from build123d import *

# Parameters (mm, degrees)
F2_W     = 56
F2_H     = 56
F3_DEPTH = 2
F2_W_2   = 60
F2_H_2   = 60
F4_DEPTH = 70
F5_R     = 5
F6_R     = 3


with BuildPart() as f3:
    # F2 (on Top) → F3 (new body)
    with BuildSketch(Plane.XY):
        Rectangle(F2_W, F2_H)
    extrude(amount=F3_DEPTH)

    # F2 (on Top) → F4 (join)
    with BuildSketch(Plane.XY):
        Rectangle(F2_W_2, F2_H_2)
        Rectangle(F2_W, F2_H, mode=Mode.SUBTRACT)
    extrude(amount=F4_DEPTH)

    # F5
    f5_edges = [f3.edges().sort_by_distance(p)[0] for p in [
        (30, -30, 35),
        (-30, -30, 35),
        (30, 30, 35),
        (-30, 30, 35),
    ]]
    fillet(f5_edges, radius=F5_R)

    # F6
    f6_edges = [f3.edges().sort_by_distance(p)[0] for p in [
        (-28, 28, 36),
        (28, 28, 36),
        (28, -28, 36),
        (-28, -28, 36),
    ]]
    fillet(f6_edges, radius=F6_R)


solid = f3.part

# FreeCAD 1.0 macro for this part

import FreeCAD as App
import Part
import Sketcher
Q = App.Units.Quantity


def edges_at(feature, points):
    """Names of the edges that pass closest to the given points."""
    edges = feature.Shape.Edges
    near = lambda p: min(range(len(edges)), key=lambda i: edges[i].distToShape(Part.Vertex(*p))[0])
    return sorted({f"Edge{near(p) + 1}" for p in points})


def add_polygon(sketch, points):
    """Adds a closed chain of lines whose ends are joined by coincident constraints."""
    first, n = sketch.GeometryCount, len(points)
    for a, b in zip(points, points[1:] + points[:1]):
        sketch.addGeometry(Part.LineSegment(App.Vector(*a, 0), App.Vector(*b, 0)), False)
    for i in range(n):
        sketch.addConstraint(Sketcher.Constraint("Coincident", first + i, 2, first + (i + 1) % n, 1))

doc = App.newDocument("Part")
params = doc.addObject("Spreadsheet::Sheet", "Params")
for row, (alias, value) in enumerate([
    ("sketch1_width", "56 mm"),
    ("pad1_length", "2 mm"),
    ("sketch2_width", "60 mm"),
    ("sketch2_width2", "56 mm"),
    ("pad2_length", "70 mm"),
    ("fillet_radius", "5 mm"),
    ("fillet2_radius", "3 mm"),
], start=1):
    params.set(f"A{row}", alias)
    params.set(f"B{row}", "=" + value)
    params.setAlias(f"B{row}", alias)

body = doc.addObject("PartDesign::Body", "Body")

# Sketch on XY plane
sketch1 = body.newObject("Sketcher::SketchObject", "Sketch")
sketch1.AttachmentSupport = (doc.getObject("XY_Plane"), [""])
sketch1.MapMode = "FlatFace"
add_polygon(sketch1, [(-28, 28), (-28, -28), (28, -28), (28, 28)])  # lines 0-3
sketch1.addConstraint([
    Sketcher.Constraint("Vertical", 0),
    Sketcher.Constraint("Horizontal", 1),
    Sketcher.Constraint("Vertical", 2),
    Sketcher.Constraint("Horizontal", 3),
    Sketcher.Constraint("Symmetric", 0, 2, 2, 2, -1, 1),
    Sketcher.Constraint("Equal", 3, 0),
    Sketcher.Constraint("DistanceX", 1, 1, 1, 2, Q("56 mm")),
])
sketch1.setExpression("Constraints[10]", "Params.sketch1_width")
pad1 = body.newObject("PartDesign::Pad", "Pad")
pad1.Profile = sketch1
pad1.setExpression("Length", "Params.pad1_length")

# Sketch on XY plane
sketch2 = body.newObject("Sketcher::SketchObject", "Sketch001")
sketch2.AttachmentSupport = (doc.getObject("XY_Plane"), [""])
sketch2.MapMode = "FlatFace"
add_polygon(sketch2, [(-30, 30), (-30, -30), (30, -30), (30, 30)])  # lines 0-3
add_polygon(sketch2, [(28, -28), (-28, -28), (-28, 28), (28, 28)])  # lines 4-7
sketch2.addConstraint([
    Sketcher.Constraint("Vertical", 0),
    Sketcher.Constraint("Horizontal", 1),
    Sketcher.Constraint("Vertical", 2),
    Sketcher.Constraint("Horizontal", 3),
    Sketcher.Constraint("Horizontal", 4),
    Sketcher.Constraint("Vertical", 5),
    Sketcher.Constraint("Horizontal", 6),
    Sketcher.Constraint("Vertical", 7),
    Sketcher.Constraint("Symmetric", 0, 2, 2, 2, -1, 1),
    Sketcher.Constraint("Symmetric", 4, 2, 6, 2, -1, 1),
    Sketcher.Constraint("Equal", 3, 0),
    Sketcher.Constraint("Equal", 6, 5),
    Sketcher.Constraint("DistanceX", 1, 1, 1, 2, Q("60 mm")),
    Sketcher.Constraint("DistanceX", 4, 2, 4, 1, Q("56 mm")),
])
sketch2.setExpression("Constraints[20]", "Params.sketch2_width")
sketch2.setExpression("Constraints[21]", "Params.sketch2_width2")
pad2 = body.newObject("PartDesign::Pad", "Pad001")
pad2.Profile = sketch2
pad2.setExpression("Length", "Params.pad2_length")
doc.recompute()

fillet = body.newObject("PartDesign::Fillet", "Fillet")
fillet.Base = (pad2, edges_at(pad2, [
    (30, -30, 35),
    (-30, -30, 35),
    (30, 30, 35),
    (-30, 30, 35),
]))
fillet.setExpression("Radius", "Params.fillet_radius")
doc.recompute()

fillet2 = body.newObject("PartDesign::Fillet", "Fillet001")
fillet2.Base = (fillet, edges_at(fillet, [
    (-28, 28, 36),
    (28, 28, 36),
    (28, -28, 36),
    (-28, -28, 36),
]))
fillet2.setExpression("Radius", "Params.fillet2_radius")

doc.recompute()
